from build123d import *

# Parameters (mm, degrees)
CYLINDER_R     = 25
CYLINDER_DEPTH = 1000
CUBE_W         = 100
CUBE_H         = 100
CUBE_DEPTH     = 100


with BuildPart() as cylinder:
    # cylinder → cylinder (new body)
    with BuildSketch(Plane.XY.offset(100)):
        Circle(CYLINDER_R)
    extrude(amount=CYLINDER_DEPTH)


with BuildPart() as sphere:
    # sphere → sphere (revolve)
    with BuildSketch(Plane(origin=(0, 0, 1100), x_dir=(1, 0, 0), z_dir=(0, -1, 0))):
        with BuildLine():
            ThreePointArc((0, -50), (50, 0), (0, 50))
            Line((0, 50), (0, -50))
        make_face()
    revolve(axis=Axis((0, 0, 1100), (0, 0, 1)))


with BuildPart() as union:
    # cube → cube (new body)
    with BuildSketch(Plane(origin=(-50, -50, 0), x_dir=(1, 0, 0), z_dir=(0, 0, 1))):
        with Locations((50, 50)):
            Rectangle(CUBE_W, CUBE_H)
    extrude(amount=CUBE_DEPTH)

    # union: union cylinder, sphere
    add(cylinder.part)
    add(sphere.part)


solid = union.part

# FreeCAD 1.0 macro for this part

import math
import FreeCAD as App
import Part
import Sketcher
from FreeCAD import Vector
Q = App.Units.Quantity


def add_polygon(sketch, points):
    """Adds a closed chain of lines whose ends are joined by coincident constraints."""
    first, n = sketch.GeometryCount, len(points)
    for a, b in zip(points, points[1:] + points[:1]):
        sketch.addGeometry(Part.LineSegment(App.Vector(*a, 0), App.Vector(*b, 0)), False)
    for i in range(n):
        sketch.addConstraint(Sketcher.Constraint("Coincident", first + i, 2, first + (i + 1) % n, 1))

doc = App.newDocument("Part")
body = doc.addObject("PartDesign::Body", "Body")

# Sketch on XY plane
sketch1 = body.newObject("Sketcher::SketchObject", "Sketch")
sketch1.AttachmentSupport = (doc.getObject("XY_Plane"), [""])
sketch1.MapMode = "FlatFace"
sketch1.AttachmentOffset = App.Placement(Vector(0, 0, 100), App.Rotation())
sketch1.addGeometry(Part.Circle(Vector(0, 0, 0), Vector(0, 0, 1), 25), False)
sketch1.addConstraint([
    Sketcher.Constraint("Coincident", 0, 3, -1, 1),
    Sketcher.Constraint("Diameter", 0, Q("50 mm")),
])
pad1 = body.newObject("PartDesign::Pad", "Pad")
pad1.Profile = sketch1
pad1.Length = 1000
body2 = doc.addObject("PartDesign::Body", "Body001")

# Sketch on XZ plane
sketch2 = body2.newObject("Sketcher::SketchObject", "Sketch001")
sketch2.AttachmentSupport = (doc.getObject("XZ_Plane001"), [""])
sketch2.MapMode = "FlatFace"
sketch2.addGeometry([
    Part.ArcOfCircle(Part.Circle(Vector(0, 1100, 0), Vector(0, 0, 1), 50), math.radians(-90), math.radians(90)),
    Part.LineSegment(Vector(0, 1150, 0), Vector(0, 1050, 0)),
], False)
sketch2.addConstraint([
    Sketcher.Constraint("Coincident", 0, 1, 1, 2),
    Sketcher.Constraint("Coincident", 1, 1, 0, 2),
    Sketcher.Constraint("Vertical", 1),
    Sketcher.Constraint("PointOnObject", 0, 3, -2),
    Sketcher.Constraint("PointOnObject", 0, 1, -2),
    Sketcher.Constraint("Radius", 0, Q("50 mm")),
    Sketcher.Constraint("DistanceY", -1, 1, 0, 3, Q("1100 mm")),
])
revolution = body2.newObject("PartDesign::Revolution", "Revolution")
revolution.Profile = sketch2
revolution.ReferenceAxis = (sketch2, ["V_Axis"])
revolution.Angle = 360
body3 = doc.addObject("PartDesign::Body", "Body002")

# Sketch on XY plane
sketch3 = body3.newObject("Sketcher::SketchObject", "Sketch002")
sketch3.AttachmentSupport = (doc.getObject("XY_Plane002"), [""])
sketch3.MapMode = "FlatFace"
add_polygon(sketch3, [(-50, 50), (-50, -50), (50, -50), (50, 50)])  # lines 0-3
sketch3.addConstraint([
    Sketcher.Constraint("Vertical", 0),
    Sketcher.Constraint("Horizontal", 1),
    Sketcher.Constraint("Vertical", 2),
    Sketcher.Constraint("Horizontal", 3),
    Sketcher.Constraint("Symmetric", 0, 2, 2, 2, -1, 1),
    Sketcher.Constraint("Equal", 3, 0),
    Sketcher.Constraint("DistanceX", 1, 1, 1, 2, Q("100 mm")),
])
pad2 = body3.newObject("PartDesign::Pad", "Pad001")
pad2.Profile = sketch3
pad2.Length = 100
doc.recompute()

boolean = body3.newObject("PartDesign::Boolean", "Boolean")
boolean.Type = "Fuse"
boolean.addObjects([body])
doc.recompute()

boolean2 = body3.newObject("PartDesign::Boolean", "Boolean001")
boolean2.Type = "Fuse"
boolean2.addObjects([body2])

doc.recompute()
